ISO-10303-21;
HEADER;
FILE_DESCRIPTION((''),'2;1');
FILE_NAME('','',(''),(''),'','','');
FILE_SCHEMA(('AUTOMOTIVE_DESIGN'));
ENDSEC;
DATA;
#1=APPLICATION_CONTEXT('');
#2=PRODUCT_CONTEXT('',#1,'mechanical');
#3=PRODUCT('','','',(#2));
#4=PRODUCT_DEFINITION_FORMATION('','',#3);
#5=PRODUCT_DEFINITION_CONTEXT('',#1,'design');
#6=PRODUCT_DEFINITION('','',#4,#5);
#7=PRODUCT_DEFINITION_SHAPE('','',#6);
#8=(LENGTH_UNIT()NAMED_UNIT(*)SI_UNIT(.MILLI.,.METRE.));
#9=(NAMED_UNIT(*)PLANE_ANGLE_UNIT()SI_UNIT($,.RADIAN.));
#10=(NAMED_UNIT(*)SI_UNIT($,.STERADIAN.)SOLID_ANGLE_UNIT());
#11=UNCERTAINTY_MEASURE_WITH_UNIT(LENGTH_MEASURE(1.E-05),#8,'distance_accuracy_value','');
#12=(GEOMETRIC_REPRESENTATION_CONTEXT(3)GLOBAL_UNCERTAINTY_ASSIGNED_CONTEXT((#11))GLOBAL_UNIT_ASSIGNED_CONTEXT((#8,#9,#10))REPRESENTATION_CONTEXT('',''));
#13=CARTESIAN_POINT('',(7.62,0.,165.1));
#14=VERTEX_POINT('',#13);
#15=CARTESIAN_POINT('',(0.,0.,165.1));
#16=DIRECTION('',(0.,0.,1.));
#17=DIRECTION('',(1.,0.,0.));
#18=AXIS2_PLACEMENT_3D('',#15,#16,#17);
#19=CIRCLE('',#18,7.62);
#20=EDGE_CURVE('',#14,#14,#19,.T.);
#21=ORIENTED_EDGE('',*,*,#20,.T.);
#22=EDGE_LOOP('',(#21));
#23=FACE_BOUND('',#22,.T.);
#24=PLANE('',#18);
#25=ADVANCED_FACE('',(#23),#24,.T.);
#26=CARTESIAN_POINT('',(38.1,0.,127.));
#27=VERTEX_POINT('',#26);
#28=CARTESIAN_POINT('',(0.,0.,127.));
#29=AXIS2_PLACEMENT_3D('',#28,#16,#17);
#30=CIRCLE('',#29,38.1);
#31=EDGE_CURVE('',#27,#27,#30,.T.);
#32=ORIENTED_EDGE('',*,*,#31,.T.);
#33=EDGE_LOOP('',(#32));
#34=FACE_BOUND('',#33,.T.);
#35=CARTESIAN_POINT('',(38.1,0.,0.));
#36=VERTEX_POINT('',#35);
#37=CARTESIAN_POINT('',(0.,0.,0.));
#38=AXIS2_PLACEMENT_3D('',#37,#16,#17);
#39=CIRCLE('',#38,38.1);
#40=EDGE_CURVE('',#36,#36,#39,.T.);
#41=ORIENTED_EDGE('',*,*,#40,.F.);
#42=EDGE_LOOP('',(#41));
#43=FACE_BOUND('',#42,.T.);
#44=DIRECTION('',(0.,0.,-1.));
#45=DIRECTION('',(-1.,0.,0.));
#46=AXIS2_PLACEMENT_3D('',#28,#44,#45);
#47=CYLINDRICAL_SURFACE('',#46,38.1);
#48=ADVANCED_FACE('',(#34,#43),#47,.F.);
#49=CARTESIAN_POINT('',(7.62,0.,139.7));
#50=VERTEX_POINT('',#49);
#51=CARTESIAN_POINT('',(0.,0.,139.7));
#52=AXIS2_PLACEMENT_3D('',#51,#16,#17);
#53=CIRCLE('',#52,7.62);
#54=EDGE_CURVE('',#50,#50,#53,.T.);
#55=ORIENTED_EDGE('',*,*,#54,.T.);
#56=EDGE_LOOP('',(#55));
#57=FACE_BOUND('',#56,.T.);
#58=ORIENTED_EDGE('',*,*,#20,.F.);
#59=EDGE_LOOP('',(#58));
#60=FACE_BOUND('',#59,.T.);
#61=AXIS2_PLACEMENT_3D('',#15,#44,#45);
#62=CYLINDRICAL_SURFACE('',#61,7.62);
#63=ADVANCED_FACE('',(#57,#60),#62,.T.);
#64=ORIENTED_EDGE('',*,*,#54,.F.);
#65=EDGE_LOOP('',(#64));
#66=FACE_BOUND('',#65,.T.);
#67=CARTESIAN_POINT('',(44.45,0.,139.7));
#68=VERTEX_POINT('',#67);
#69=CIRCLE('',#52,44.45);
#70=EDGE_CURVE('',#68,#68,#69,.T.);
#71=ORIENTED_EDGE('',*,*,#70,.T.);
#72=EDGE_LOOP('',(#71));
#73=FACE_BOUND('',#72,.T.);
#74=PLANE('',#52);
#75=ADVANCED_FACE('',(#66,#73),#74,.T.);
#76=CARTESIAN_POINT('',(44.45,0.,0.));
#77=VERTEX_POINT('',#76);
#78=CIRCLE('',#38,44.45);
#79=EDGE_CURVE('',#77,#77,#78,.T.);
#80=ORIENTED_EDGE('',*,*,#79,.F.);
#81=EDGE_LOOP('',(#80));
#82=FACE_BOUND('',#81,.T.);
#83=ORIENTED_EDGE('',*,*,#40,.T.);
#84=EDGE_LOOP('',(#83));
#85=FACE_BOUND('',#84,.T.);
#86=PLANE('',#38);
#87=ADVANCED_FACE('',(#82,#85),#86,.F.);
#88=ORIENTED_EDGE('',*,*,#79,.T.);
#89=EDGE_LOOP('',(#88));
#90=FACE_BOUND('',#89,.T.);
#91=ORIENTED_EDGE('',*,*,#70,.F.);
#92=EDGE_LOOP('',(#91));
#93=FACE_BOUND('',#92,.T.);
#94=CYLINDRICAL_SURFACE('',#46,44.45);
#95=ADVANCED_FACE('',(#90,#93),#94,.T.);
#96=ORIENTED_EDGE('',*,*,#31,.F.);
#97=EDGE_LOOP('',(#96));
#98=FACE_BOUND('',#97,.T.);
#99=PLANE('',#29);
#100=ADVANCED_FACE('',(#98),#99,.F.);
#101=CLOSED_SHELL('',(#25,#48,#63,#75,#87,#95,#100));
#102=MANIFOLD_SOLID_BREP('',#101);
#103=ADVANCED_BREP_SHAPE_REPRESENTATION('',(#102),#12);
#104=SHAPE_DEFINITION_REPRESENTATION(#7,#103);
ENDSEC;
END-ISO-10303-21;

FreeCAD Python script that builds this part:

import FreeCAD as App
import Part
import Sketcher

V = App.Vector
Q = App.Units.Quantity

doc = App.newDocument("Part")
body = doc.addObject("PartDesign::Body", "Body")

# Sketch on XY plane
sketch1 = body.newObject("Sketcher::SketchObject", "Sketch")
sketch1.AttachmentSupport = (doc.getObject("XY_Plane"), [""])
sketch1.MapMode = "FlatFace"
sketch1.addGeometry(Part.Circle(V(0, 0, 0), V(0, 0, 1), 44), False)
sketch1.addGeometry(Part.Circle(V(0, 0, 0), V(0, 0, 1), 38), False)
sketch1.addConstraint(Sketcher.Constraint("Coincident", 0, 3, -1, 1))
sketch1.addConstraint(Sketcher.Constraint("Coincident", 1, 3, -1, 1))
sketch1.addConstraint(Sketcher.Constraint("Diameter", 1, Q("3 in")))
sketch1.addConstraint(Sketcher.Constraint("Diameter", 0, Q("3.5 in")))
pad1 = body.newObject("PartDesign::Pad", "Pad")
pad1.Profile = sketch1
pad1.Length = Q("5 in")

# Sketch on XY plane
sketch2 = body.newObject("Sketcher::SketchObject", "Sketch001")
sketch2.AttachmentSupport = (doc.getObject("XY_Plane"), [""])
sketch2.MapMode = "FlatFace"
sketch2.AttachmentOffset = App.Placement(V(0, 0, 5 * 25.4), App.Rotation())
sketch2.addGeometry(Part.Circle(V(0, 0, 0), V(0, 0, 1), 44), False)
sketch2.addConstraint(Sketcher.Constraint("Coincident", 0, 3, -1, 1))
sketch2.addConstraint(Sketcher.Constraint("Diameter", 0, Q("3.5 in")))
pad2 = body.newObject("PartDesign::Pad", "Pad001")
pad2.Profile = sketch2
pad2.Length = Q("0.5 in")

# Sketch on XY plane
sketch3 = body.newObject("Sketcher::SketchObject", "Sketch002")
sketch3.AttachmentSupport = (doc.getObject("XY_Plane"), [""])
sketch3.MapMode = "FlatFace"
sketch3.AttachmentOffset = App.Placement(V(0, 0, 5.5 * 25.4), App.Rotation())
sketch3.addGeometry(Part.Circle(V(0, 0, 0), V(0, 0, 1), 8), False)
sketch3.addConstraint(Sketcher.Constraint("Coincident", 0, 3, -1, 1))
sketch3.addConstraint(Sketcher.Constraint("Diameter", 0, Q("0.6 in")))
pad3 = body.newObject("PartDesign::Pad", "Pad002")
pad3.Profile = sketch3
pad3.Length = Q("1 in")

doc.recompute()
